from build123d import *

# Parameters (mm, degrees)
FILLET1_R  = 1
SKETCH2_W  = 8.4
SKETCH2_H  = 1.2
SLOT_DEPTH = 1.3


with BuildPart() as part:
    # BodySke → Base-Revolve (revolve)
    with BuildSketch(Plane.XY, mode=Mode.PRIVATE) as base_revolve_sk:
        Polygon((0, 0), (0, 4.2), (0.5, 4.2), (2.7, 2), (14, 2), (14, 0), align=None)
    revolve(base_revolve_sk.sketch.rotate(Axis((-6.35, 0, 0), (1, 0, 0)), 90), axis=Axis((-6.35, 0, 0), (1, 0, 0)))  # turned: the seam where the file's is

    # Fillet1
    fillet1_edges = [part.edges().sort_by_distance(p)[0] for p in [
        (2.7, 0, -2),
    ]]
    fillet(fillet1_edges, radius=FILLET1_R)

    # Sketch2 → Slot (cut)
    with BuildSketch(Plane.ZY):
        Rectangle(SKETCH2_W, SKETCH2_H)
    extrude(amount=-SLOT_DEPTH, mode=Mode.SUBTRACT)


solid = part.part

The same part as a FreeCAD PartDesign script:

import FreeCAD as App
import Part
import Sketcher
from FreeCAD import Vector
Q = App.Units.Quantity


def edges_at(feature, points):
    """Names of the edges that pass closest to the given points."""
    edges = feature.Shape.Edges
    near = lambda p: min(range(len(edges)), key=lambda i: edges[i].distToShape(Part.Vertex(*p))[0])
    return sorted({f"Edge{near(p) + 1}" for p in points})

doc = App.newDocument("Part")
body = doc.addObject("PartDesign::Body", "Body")

# Sketch on XY plane
sketch1 = body.newObject("Sketcher::SketchObject", "Sketch")
sketch1.AttachmentSupport = (doc.getObject("XY_Plane"), [""])
sketch1.MapMode = "FlatFace"
sketch1.addGeometry(Part.LineSegment(Vector(0, 4.2, 0), Vector(0, 0, 0)), False)
sketch1.addGeometry(Part.LineSegment(Vector(0, 0, 0), Vector(14, 0, 0)), False)
sketch1.addGeometry(Part.LineSegment(Vector(14, 0, 0), Vector(14, 2, 0)), False)
sketch1.addGeometry(Part.LineSegment(Vector(14, 2, 0), Vector(2.7, 2, 0)), False)
sketch1.addGeometry(Part.LineSegment(Vector(2.7, 2, 0), Vector(0.5, 4.2, 0)), False)
sketch1.addGeometry(Part.LineSegment(Vector(0.5, 4.2, 0), Vector(0, 4.2, 0)), False)
sketch1.addConstraint(Sketcher.Constraint("Coincident", 0, 2, 1, 1))
sketch1.addConstraint(Sketcher.Constraint("Coincident", 1, 2, 2, 1))
sketch1.addConstraint(Sketcher.Constraint("Coincident", 2, 2, 3, 1))
sketch1.addConstraint(Sketcher.Constraint("Coincident", 3, 2, 4, 1))
sketch1.addConstraint(Sketcher.Constraint("Coincident", 4, 2, 5, 1))
sketch1.addConstraint(Sketcher.Constraint("Coincident", 5, 2, 0, 1))
sketch1.addConstraint(Sketcher.Constraint("Vertical", 0))
sketch1.addConstraint(Sketcher.Constraint("Horizontal", 1))
sketch1.addConstraint(Sketcher.Constraint("Vertical", 2))
sketch1.addConstraint(Sketcher.Constraint("Horizontal", 3))
sketch1.addConstraint(Sketcher.Constraint("Horizontal", 5))
sketch1.addConstraint(Sketcher.Constraint("Coincident", 0, 2, -1, 1))
sketch1.addConstraint(Sketcher.Constraint("DistanceX", 1, 1, 1, 2, Q("14 mm")))
sketch1.addConstraint(Sketcher.Constraint("DistanceY", 2, 1, 2, 2, Q("2 mm")))
sketch1.addConstraint(Sketcher.Constraint("Angle", 4, Q("135 deg")))
sketch1.addConstraint(Sketcher.Constraint("DistanceX", 3, 2, 3, 1, Q("11.3 mm")))
sketch1.addConstraint(Sketcher.Constraint("DistanceX", 5, 2, 5, 1, Q("0.5 mm")))
revolution = body.newObject("PartDesign::Revolution", "Revolution")
revolution.Profile = sketch1
revolution.ReferenceAxis = (sketch1, ["H_Axis"])
revolution.Angle = 360
doc.recompute()

fillet = body.newObject("PartDesign::Fillet", "Fillet")
fillet.Base = (revolution, edges_at(revolution, [(2.7, 0, -2)]))
fillet.Radius = 1

# Sketch on YZ plane
sketch2 = body.newObject("Sketcher::SketchObject", "Sketch001")
sketch2.AttachmentSupport = (doc.getObject("YZ_Plane"), [""])
sketch2.MapMode = "FlatFace"
sketch2.addGeometry(Part.LineSegment(Vector(0.6, -4.2, 0), Vector(-0.6, -4.2, 0)), False)
sketch2.addGeometry(Part.LineSegment(Vector(-0.6, -4.2, 0), Vector(-0.6, 4.2, 0)), False)
sketch2.addGeometry(Part.LineSegment(Vector(-0.6, 4.2, 0), Vector(0.6, 4.2, 0)), False)
sketch2.addGeometry(Part.LineSegment(Vector(0.6, 4.2, 0), Vector(0.6, -4.2, 0)), False)
sketch2.addConstraint(Sketcher.Constraint("Coincident", 0, 2, 1, 1))
sketch2.addConstraint(Sketcher.Constraint("Coincident", 1, 2, 2, 1))
sketch2.addConstraint(Sketcher.Constraint("Coincident", 2, 2, 3, 1))
sketch2.addConstraint(Sketcher.Constraint("Coincident", 3, 2, 0, 1))
sketch2.addConstraint(Sketcher.Constraint("Horizontal", 0))
sketch2.addConstraint(Sketcher.Constraint("Vertical", 1))
sketch2.addConstraint(Sketcher.Constraint("Horizontal", 2))
sketch2.addConstraint(Sketcher.Constraint("Vertical", 3))
sketch2.addConstraint(Sketcher.Constraint("Symmetric", 0, 2, 2, 2, -1, 1))
sketch2.addConstraint(Sketcher.Constraint("DistanceX", 0, 2, 0, 1, Q("1.2 mm")))
sketch2.addConstraint(Sketcher.Constraint("DistanceY", 1, 1, 1, 2, Q("8.4 mm")))
pocket1 = body.newObject("PartDesign::Pocket", "Pocket")
pocket1.Profile = sketch2
pocket1.Length = 1.3
pocket1.Reversed = True

doc.recompute()
